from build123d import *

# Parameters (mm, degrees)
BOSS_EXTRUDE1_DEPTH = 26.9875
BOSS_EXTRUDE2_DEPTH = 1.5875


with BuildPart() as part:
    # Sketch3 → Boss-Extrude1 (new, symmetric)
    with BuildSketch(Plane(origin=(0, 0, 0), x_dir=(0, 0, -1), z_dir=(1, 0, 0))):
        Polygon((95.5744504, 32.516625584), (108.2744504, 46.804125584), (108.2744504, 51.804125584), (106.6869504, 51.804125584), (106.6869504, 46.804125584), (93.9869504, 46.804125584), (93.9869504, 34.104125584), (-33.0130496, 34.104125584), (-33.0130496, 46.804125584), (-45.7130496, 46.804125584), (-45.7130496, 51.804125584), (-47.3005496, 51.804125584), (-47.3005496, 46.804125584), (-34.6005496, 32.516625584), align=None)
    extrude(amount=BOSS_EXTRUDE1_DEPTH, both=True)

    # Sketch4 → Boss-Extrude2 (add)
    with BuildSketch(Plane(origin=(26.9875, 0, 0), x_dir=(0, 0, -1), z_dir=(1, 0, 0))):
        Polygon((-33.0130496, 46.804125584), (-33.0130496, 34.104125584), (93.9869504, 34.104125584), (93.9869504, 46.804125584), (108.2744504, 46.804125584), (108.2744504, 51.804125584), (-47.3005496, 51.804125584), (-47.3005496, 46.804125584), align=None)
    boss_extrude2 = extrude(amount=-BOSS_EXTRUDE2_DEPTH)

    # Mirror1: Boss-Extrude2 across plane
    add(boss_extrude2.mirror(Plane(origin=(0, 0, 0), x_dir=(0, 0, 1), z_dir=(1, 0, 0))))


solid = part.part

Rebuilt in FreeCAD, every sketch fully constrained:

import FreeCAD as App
import Part
import Sketcher

V = App.Vector
Q = App.Units.Quantity

doc = App.newDocument("Part")
params = doc.addObject("Spreadsheet::Sheet", "Params")
for row, (alias, value) in enumerate([
    ("sketch1_height", "5 in"),
    ("sketch1_width", "0.5 in"),
    ("sketch1_height2", "0.0625 in"),
    ("pad1_length", "2.125 in"),
    ("sketch2_height", "5 in"),
    ("sketch2_width", "0.5 in"),
    ("sketch2_height2", "0.5625 in"),
    ("pad2_length", "0.0625 in"),
], start=1):
    params.set(f"A{row}", alias)
    params.set(f"B{row}", "=" + value)
    params.setAlias(f"B{row}", alias)

body = doc.addObject("PartDesign::Body", "Body")

# Sketch on YZ plane
sketch1 = doc.addObject("Sketcher::SketchObject", "Sketch")
body.addObject(sketch1)
sketch1.AttachmentSupport = (doc.YZ_Plane, [""])
sketch1.MapMode = "FlatFace"
sketch1.addGeometry([
    Part.LineSegment(V(32.5, -95.6, 0), V(46.8, -108.3, 0)),  # 0
    Part.LineSegment(V(46.8, -108.3, 0), V(51.8, -108.3, 0)),  # 1
    Part.LineSegment(V(51.8, -108.3, 0), V(51.8, -106.7, 0)),  # 2
    Part.LineSegment(V(51.8, -106.7, 0), V(46.8, -106.7, 0)),  # 3
    Part.LineSegment(V(46.8, -106.7, 0), V(46.8, -94, 0)),  # 4
    Part.LineSegment(V(46.8, -94, 0), V(34.1, -94, 0)),  # 5
    Part.LineSegment(V(34.1, -94, 0), V(34.1, 33, 0)),  # 6
    Part.LineSegment(V(34.1, 33, 0), V(46.8, 33, 0)),  # 7
    Part.LineSegment(V(46.8, 33, 0), V(46.8, 45.7, 0)),  # 8
    Part.LineSegment(V(46.8, 45.7, 0), V(51.8, 45.7, 0)),  # 9
    Part.LineSegment(V(51.8, 45.7, 0), V(51.8, 47.3, 0)),  # 10
    Part.LineSegment(V(51.8, 47.3, 0), V(46.8, 47.3, 0)),  # 11
    Part.LineSegment(V(46.8, 47.3, 0), V(32.5, 34.6, 0)),  # 12
    Part.LineSegment(V(32.5, 34.6, 0), V(32.5, -95.6, 0)),  # 13
], False)
sketch1.addConstraint([
    Sketcher.Constraint("Coincident", 0, 2, 1, 1),
    Sketcher.Constraint("Coincident", 1, 2, 2, 1),
    Sketcher.Constraint("Coincident", 2, 2, 3, 1),
    Sketcher.Constraint("Coincident", 3, 2, 4, 1),
    Sketcher.Constraint("Coincident", 4, 2, 5, 1),
    Sketcher.Constraint("Coincident", 5, 2, 6, 1),
    Sketcher.Constraint("Coincident", 6, 2, 7, 1),
    Sketcher.Constraint("Coincident", 7, 2, 8, 1),
    Sketcher.Constraint("Coincident", 8, 2, 9, 1),
    Sketcher.Constraint("Coincident", 9, 2, 10, 1),
    Sketcher.Constraint("Coincident", 10, 2, 11, 1),
    Sketcher.Constraint("Coincident", 11, 2, 12, 1),
    Sketcher.Constraint("Coincident", 12, 2, 13, 1),
    Sketcher.Constraint("Coincident", 13, 2, 0, 1),
    Sketcher.Constraint("Horizontal", 1),
    Sketcher.Constraint("Vertical", 2),
    Sketcher.Constraint("Horizontal", 3),
    Sketcher.Constraint("Vertical", 4),
    Sketcher.Constraint("Horizontal", 5),
    Sketcher.Constraint("Vertical", 6),
    Sketcher.Constraint("Horizontal", 7),
    Sketcher.Constraint("Vertical", 8),
    Sketcher.Constraint("Horizontal", 9),
    Sketcher.Constraint("Vertical", 10),
    Sketcher.Constraint("Horizontal", 11),
    Sketcher.Constraint("Vertical", 13),
    Sketcher.Constraint("Vertical", 0, 2, 3, 2),
    Sketcher.Constraint("Vertical", 4, 2, 7, 2),
    Sketcher.Constraint("Vertical", 2, 2, 9, 2),
    Sketcher.Constraint("Vertical", 8, 2, 11, 2),
    Sketcher.Constraint("Equal", 7, 4),
    Sketcher.Constraint("Equal", 4, 8),
    Sketcher.Constraint("Equal", 2, 10),
    Sketcher.Constraint("Equal", 0, 12),
    Sketcher.Constraint("DistanceY", 6, 1, 6, 2, Q("5 in")),
    Sketcher.Constraint("DistanceX", 5, 2, 5, 1, Q("0.5 in")),
    Sketcher.Constraint("DistanceY", 12, 2, 11, 2, Q("0.5 in")),
    Sketcher.Constraint("DistanceY", 2, 1, 2, 2, Q("0.0625 in")),
    Sketcher.Constraint("DistanceX", 12, 2, 6, 2, Q("0.0625 in")),
    Sketcher.Constraint("DistanceX", 1, 1, 1, 2, Q("5 mm")),
    Sketcher.Constraint("DistanceY", 0, 2, -1, 1, Q("108.27445 mm")),
    Sketcher.Constraint("DistanceX", -1, 1, 0, 2, Q("46.804126 mm")),
])
sketch1.setExpression("Constraints[34]", "Params.sketch1_height")
sketch1.setExpression("Constraints[35]", "Params.sketch1_width")
sketch1.setExpression("Constraints[37]", "Params.sketch1_height2")
pad1 = doc.addObject("PartDesign::Pad", "Pad")
body.addObject(pad1)
pad1.Profile = sketch1
pad1.setExpression("Length", "Params.pad1_length")
pad1.Midplane = True

# Sketch on YZ plane
sketch2 = doc.addObject("Sketcher::SketchObject", "Sketch001")
body.addObject(sketch2)
sketch2.AttachmentSupport = (doc.YZ_Plane, [""])
sketch2.MapMode = "FlatFace"
sketch2.AttachmentOffset = App.Placement(V(0, 0, 1.0625 * 25.4), App.Rotation())
sketch2.addGeometry([
    Part.LineSegment(V(47, 33, 0), V(34, 33, 0)),  # 0
    Part.LineSegment(V(34, 33, 0), V(34, -94, 0)),  # 1
    Part.LineSegment(V(34, -94, 0), V(47, -94, 0)),  # 2
    Part.LineSegment(V(47, -94, 0), V(47, -108, 0)),  # 3
    Part.LineSegment(V(47, -108, 0), V(52, -108, 0)),  # 4
    Part.LineSegment(V(52, -108, 0), V(52, 47, 0)),  # 5
    Part.LineSegment(V(52, 47, 0), V(47, 47, 0)),  # 6
    Part.LineSegment(V(47, 47, 0), V(47, 33, 0)),  # 7
], False)
sketch2.addConstraint([
    Sketcher.Constraint("Coincident", 0, 2, 1, 1),
    Sketcher.Constraint("Coincident", 1, 2, 2, 1),
    Sketcher.Constraint("Coincident", 2, 2, 3, 1),
    Sketcher.Constraint("Coincident", 3, 2, 4, 1),
    Sketcher.Constraint("Coincident", 4, 2, 5, 1),
    Sketcher.Constraint("Coincident", 5, 2, 6, 1),
    Sketcher.Constraint("Coincident", 6, 2, 7, 1),
    Sketcher.Constraint("Coincident", 7, 2, 0, 1),
    Sketcher.Constraint("Horizontal", 0),
    Sketcher.Constraint("Vertical", 1),
    Sketcher.Constraint("Horizontal", 2),
    Sketcher.Constraint("Vertical", 3),
    Sketcher.Constraint("Horizontal", 4),
    Sketcher.Constraint("Vertical", 5),
    Sketcher.Constraint("Horizontal", 6),
    Sketcher.Constraint("Vertical", 7),
    Sketcher.Constraint("Vertical", 3, 2, 6, 2),
    Sketcher.Constraint("Equal", 3, 7),
    Sketcher.Constraint("DistanceY", 1, 2, 1, 1, Q("5 in")),
    Sketcher.Constraint("DistanceX", 0, 2, 0, 1, Q("0.5 in")),
    Sketcher.Constraint("DistanceY", 3, 2, 3, 1, Q("0.5625 in")),
    Sketcher.Constraint("DistanceX", 4, 1, 4, 2, Q("5 mm")),
    Sketcher.Constraint("DistanceY", -1, 1, 0, 2, Q("33.01305 mm")),
    Sketcher.Constraint("DistanceX", -1, 1, 0, 2, Q("34.104126 mm")),
])
sketch2.setExpression("Constraints[18]", "Params.sketch2_height")
sketch2.setExpression("Constraints[19]", "Params.sketch2_width")
sketch2.setExpression("Constraints[20]", "Params.sketch2_height2")
pad2 = doc.addObject("PartDesign::Pad", "Pad001")
body.addObject(pad2)
pad2.Profile = sketch2
pad2.setExpression("Length", "Params.pad2_length")
pad2.Reversed = True
doc.recompute()

mirrored = doc.addObject("PartDesign::Mirrored", "Mirrored")
body.addObject(mirrored)
mirrored.Originals = [pad2]
mirrored.MirrorPlane = (doc.YZ_Plane, [""])
body.Tip = mirrored

doc.recompute()
